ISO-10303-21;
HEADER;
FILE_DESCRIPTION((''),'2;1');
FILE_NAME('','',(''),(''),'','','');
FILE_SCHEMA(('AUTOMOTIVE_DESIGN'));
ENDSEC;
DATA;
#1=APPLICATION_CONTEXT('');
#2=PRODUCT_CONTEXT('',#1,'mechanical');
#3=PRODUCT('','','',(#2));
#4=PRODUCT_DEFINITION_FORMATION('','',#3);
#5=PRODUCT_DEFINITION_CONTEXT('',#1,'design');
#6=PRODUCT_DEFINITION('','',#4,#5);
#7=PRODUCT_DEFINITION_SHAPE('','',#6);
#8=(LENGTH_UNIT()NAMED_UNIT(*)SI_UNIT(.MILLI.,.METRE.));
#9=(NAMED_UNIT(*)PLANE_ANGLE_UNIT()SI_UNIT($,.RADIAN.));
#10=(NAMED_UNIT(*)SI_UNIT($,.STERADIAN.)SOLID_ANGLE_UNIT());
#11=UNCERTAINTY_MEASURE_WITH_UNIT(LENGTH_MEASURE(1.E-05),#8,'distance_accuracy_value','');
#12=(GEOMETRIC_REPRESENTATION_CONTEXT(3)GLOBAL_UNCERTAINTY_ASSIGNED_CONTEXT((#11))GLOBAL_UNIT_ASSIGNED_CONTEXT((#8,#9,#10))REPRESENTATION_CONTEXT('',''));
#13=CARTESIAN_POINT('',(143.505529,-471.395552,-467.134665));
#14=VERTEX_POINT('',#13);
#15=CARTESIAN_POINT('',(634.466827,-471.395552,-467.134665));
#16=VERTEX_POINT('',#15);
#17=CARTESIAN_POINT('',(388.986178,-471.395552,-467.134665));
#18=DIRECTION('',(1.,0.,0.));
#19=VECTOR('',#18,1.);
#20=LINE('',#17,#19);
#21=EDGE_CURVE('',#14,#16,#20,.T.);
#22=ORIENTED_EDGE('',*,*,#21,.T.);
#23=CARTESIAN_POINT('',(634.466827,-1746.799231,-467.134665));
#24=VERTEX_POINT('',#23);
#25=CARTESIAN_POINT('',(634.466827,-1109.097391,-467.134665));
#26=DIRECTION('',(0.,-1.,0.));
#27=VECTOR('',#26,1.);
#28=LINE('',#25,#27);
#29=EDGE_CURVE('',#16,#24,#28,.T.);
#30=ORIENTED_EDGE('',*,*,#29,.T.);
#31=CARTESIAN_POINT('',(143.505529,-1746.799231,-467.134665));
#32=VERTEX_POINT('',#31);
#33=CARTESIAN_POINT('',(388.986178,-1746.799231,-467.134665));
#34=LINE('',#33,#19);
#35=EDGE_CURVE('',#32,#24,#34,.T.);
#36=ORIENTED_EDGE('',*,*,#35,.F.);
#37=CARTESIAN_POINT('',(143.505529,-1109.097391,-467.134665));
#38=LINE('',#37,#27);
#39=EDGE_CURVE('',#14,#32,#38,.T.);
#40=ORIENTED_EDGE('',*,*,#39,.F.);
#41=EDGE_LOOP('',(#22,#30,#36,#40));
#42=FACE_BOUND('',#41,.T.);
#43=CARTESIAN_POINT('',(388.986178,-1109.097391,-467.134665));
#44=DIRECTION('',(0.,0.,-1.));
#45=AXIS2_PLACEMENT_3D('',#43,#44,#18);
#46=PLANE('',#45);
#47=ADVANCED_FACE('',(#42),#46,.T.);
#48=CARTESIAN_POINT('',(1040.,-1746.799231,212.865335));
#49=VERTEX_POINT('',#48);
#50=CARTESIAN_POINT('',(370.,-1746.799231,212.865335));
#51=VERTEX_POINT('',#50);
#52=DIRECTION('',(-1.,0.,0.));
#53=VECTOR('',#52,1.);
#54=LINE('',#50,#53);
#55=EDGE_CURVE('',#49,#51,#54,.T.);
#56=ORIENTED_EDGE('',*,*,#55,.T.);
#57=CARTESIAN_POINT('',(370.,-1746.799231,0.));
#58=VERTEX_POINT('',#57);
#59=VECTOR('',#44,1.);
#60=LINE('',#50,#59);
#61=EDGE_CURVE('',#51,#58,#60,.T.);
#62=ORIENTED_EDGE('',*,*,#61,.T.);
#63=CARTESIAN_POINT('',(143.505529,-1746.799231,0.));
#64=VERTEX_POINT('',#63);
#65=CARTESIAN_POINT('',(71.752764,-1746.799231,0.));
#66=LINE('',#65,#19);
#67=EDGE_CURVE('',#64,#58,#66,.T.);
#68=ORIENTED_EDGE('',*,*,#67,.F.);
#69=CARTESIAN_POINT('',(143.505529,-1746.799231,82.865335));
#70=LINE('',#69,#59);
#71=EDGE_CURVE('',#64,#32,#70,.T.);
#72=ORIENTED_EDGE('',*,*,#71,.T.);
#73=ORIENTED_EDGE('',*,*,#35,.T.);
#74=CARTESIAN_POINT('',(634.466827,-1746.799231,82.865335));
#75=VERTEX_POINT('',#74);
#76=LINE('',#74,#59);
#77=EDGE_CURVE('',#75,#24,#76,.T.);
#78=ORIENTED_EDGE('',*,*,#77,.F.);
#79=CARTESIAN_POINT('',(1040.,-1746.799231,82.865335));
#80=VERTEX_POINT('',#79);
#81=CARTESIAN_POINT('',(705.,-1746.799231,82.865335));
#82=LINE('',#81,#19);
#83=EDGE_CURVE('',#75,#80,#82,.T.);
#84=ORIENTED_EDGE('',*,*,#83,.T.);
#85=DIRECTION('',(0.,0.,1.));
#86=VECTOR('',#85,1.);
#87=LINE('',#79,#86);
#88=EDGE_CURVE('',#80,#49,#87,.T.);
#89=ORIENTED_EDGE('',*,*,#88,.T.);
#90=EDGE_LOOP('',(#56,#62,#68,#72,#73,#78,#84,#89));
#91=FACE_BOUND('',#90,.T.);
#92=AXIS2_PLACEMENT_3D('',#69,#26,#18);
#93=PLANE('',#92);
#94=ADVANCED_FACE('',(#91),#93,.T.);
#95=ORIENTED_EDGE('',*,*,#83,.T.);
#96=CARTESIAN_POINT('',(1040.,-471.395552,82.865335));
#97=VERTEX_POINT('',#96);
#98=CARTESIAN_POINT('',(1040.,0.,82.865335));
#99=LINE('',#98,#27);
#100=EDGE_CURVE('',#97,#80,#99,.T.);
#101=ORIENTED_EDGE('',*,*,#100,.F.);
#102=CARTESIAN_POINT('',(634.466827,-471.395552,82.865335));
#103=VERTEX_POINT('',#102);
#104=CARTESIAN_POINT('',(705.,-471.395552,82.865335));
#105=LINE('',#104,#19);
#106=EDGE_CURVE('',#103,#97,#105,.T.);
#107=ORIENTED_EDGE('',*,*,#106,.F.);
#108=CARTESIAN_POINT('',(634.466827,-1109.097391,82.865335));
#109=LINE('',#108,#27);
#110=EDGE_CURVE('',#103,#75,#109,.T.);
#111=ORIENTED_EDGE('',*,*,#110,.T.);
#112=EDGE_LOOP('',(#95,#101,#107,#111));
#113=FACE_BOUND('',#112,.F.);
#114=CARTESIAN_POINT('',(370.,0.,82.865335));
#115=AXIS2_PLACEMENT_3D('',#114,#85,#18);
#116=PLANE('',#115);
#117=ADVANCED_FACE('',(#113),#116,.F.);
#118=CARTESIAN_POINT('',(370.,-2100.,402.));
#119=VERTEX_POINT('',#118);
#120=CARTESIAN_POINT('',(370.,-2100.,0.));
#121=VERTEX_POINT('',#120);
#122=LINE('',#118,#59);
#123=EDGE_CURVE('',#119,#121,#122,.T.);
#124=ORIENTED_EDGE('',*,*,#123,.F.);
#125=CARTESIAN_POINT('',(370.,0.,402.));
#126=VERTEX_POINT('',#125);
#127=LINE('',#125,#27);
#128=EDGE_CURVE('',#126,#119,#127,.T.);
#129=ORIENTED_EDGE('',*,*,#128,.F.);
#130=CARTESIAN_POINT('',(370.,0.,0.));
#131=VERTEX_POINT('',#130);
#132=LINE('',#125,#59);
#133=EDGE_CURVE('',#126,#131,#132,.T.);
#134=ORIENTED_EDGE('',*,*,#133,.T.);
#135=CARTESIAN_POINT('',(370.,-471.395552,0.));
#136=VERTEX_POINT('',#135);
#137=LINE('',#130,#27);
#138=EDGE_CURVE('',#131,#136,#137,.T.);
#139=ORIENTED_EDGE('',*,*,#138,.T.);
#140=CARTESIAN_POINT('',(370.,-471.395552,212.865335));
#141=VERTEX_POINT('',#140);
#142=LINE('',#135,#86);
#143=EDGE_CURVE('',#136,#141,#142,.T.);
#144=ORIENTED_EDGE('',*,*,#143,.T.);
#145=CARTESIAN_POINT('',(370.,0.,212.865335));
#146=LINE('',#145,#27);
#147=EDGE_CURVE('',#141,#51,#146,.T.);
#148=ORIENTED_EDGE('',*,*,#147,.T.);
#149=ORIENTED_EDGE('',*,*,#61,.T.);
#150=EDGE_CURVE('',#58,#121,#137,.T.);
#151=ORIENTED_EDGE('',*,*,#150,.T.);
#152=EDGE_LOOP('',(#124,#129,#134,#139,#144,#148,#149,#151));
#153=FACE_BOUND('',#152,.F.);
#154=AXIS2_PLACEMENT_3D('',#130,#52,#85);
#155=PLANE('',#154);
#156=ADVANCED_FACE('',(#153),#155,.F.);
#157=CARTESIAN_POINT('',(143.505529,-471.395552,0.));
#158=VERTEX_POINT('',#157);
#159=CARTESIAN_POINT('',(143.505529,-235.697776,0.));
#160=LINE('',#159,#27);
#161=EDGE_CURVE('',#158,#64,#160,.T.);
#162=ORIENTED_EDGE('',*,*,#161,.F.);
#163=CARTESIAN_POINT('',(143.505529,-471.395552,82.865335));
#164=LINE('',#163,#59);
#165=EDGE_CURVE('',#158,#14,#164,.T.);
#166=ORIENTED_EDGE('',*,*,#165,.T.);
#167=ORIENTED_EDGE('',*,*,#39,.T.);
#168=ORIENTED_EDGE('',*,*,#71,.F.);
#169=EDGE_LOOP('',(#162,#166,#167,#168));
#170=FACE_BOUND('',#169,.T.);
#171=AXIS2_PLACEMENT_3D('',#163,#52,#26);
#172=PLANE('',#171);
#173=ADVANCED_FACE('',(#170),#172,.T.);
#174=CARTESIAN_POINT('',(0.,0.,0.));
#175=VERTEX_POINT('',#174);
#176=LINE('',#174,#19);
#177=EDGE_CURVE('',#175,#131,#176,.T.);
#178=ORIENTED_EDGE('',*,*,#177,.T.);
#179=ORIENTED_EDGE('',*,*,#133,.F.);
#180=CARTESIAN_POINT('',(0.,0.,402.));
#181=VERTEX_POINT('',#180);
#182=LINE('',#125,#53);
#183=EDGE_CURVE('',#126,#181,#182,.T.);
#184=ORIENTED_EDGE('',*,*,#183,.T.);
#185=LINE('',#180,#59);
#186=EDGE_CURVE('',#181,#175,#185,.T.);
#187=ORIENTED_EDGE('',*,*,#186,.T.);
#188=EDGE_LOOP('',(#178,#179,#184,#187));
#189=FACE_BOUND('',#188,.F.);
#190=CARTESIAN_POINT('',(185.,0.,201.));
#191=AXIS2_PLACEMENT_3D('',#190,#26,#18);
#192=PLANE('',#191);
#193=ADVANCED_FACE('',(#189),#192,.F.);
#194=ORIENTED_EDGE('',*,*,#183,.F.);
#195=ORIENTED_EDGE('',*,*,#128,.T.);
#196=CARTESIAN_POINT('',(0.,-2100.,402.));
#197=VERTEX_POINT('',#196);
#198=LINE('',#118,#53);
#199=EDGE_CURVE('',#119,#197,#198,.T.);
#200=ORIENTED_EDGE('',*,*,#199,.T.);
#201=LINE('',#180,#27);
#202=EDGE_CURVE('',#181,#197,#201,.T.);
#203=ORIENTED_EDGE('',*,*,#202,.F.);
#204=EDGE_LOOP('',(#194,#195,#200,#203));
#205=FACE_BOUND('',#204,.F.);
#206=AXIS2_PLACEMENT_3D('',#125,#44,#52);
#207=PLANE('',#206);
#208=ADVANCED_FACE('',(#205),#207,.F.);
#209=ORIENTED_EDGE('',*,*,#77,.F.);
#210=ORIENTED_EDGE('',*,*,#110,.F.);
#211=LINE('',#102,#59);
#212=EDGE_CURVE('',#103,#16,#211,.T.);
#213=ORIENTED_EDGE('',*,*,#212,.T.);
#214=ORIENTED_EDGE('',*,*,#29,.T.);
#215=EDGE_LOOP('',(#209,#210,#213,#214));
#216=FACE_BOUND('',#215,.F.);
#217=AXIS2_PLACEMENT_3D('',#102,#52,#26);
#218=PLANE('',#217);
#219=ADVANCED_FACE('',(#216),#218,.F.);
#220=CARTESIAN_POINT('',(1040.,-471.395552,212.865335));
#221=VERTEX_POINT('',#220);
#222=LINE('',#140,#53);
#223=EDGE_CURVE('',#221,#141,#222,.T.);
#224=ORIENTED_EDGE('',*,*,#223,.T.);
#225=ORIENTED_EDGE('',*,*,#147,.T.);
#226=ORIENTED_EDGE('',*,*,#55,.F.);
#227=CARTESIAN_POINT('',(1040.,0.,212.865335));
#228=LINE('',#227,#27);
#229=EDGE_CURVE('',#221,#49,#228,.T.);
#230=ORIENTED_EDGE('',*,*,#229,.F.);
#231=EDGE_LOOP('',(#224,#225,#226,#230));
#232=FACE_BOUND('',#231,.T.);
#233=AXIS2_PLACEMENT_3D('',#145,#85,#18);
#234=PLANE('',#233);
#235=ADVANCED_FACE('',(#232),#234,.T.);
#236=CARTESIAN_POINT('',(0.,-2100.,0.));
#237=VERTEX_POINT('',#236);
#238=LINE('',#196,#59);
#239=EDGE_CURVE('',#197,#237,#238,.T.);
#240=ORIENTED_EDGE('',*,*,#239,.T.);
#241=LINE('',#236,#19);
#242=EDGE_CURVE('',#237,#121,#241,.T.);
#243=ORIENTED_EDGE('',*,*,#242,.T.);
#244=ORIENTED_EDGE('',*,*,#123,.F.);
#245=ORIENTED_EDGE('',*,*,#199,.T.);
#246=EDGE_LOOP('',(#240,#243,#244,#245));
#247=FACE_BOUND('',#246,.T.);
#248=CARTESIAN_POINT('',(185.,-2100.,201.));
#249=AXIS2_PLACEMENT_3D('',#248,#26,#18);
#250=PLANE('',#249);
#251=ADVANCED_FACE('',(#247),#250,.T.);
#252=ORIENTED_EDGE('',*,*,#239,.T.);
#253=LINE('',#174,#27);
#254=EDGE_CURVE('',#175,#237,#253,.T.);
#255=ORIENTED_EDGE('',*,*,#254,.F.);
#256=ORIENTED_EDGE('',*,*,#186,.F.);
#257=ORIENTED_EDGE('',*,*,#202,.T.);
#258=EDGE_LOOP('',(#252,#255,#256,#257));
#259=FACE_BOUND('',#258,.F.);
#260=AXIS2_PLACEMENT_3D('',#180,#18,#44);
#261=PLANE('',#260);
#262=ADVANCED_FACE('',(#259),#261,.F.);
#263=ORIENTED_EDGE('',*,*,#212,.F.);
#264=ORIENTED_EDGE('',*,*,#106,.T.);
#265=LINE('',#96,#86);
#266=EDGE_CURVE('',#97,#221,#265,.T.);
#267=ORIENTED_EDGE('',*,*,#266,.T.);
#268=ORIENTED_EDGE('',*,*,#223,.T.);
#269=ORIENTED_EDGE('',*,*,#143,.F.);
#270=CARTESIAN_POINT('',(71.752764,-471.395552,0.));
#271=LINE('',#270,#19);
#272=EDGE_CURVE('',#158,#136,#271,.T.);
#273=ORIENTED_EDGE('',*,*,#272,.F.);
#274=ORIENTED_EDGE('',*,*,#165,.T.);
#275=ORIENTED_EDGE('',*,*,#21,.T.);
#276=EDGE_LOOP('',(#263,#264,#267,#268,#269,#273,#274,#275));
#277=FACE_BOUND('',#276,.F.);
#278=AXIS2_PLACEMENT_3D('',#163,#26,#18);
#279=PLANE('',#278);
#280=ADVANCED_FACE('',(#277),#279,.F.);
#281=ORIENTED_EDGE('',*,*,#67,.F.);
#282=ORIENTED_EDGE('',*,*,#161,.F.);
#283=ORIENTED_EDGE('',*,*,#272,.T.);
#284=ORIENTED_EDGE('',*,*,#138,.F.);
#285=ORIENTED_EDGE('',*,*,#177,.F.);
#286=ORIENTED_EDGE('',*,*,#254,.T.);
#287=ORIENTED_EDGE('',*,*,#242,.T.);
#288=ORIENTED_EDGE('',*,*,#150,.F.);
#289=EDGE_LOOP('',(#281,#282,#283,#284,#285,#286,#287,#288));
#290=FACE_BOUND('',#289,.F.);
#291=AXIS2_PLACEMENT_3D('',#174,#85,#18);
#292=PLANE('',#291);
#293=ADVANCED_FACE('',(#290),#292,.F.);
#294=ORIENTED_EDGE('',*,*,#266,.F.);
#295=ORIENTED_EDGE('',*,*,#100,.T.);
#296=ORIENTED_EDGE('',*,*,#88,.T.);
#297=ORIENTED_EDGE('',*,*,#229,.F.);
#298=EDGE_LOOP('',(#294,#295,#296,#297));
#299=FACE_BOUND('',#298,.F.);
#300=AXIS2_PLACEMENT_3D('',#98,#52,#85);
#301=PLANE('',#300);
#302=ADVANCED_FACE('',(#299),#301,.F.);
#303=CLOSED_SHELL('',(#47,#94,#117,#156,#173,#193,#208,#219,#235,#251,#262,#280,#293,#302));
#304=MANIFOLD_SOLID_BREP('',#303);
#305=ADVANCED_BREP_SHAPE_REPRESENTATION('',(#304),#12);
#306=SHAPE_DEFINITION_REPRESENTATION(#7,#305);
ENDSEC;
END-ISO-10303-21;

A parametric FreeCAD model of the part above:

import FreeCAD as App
import Part
import Sketcher
from FreeCAD import Vector

doc = App.newDocument("Part")
body = doc.addObject("PartDesign::Body", "Body")

sketch1 = doc.addObject("Sketcher::SketchObject", "Sketch")
body.addObject(sketch1)
sketch1.AttachmentSupport = (doc.XZ_Plane, [""])
sketch1.MapMode = "FlatFace"
sketch1.addGeometry([
    Part.LineSegment(Vector(0, 402, 0), Vector(0, 0, 0)),
    Part.LineSegment(Vector(0, 0, 0), Vector(370, 0, 0)),
    Part.LineSegment(Vector(370, 0, 0), Vector(370, 83, 0)),
    Part.LineSegment(Vector(370, 83, 0), Vector(1040, 83, 0)),
    Part.LineSegment(Vector(1040, 83, 0), Vector(1040, 213, 0)),
    Part.LineSegment(Vector(1040, 213, 0), Vector(370, 213, 0)),
    Part.LineSegment(Vector(370, 213, 0), Vector(370, 402, 0)),
    Part.LineSegment(Vector(370, 402, 0), Vector(0, 402, 0)),
], False)
sketch1.addConstraint([
    Sketcher.Constraint("Coincident", 0, 2, 1, 1),
    Sketcher.Constraint("Coincident", 1, 2, 2, 1),
    Sketcher.Constraint("Coincident", 2, 2, 3, 1),
    Sketcher.Constraint("Coincident", 3, 2, 4, 1),
    Sketcher.Constraint("Coincident", 4, 2, 5, 1),
    Sketcher.Constraint("Coincident", 5, 2, 6, 1),
    Sketcher.Constraint("Coincident", 6, 2, 7, 1),
    Sketcher.Constraint("Coincident", 7, 2, 0, 1),
    Sketcher.Constraint("Vertical", 0),
    Sketcher.Constraint("Horizontal", 1),
    Sketcher.Constraint("Vertical", 2),
    Sketcher.Constraint("Horizontal", 3),
    Sketcher.Constraint("Vertical", 4),
    Sketcher.Constraint("Horizontal", 5),
    Sketcher.Constraint("Vertical", 6),
    Sketcher.Constraint("Horizontal", 7),
    Sketcher.Constraint("Coincident", 0, 2, -1, 1),
    Sketcher.Constraint("Vertical", 2, 2, 5, 2),
    Sketcher.Constraint("DistanceX", 1, 1, 1, 2, 370.0),
    Sketcher.Constraint("DistanceX", 3, 1, 3, 2, 670.0),
    Sketcher.Constraint("DistanceY", 0, 2, 0, 1, 402.0),
    Sketcher.Constraint("DistanceY", 4, 1, 4, 2, 130.0),
    Sketcher.Constraint("DistanceY", 2, 1, 2, 2, 82.865335),
])
pad1 = doc.addObject("PartDesign::Pad", "Pad")
body.addObject(pad1)
pad1.Profile = sketch1
pad1.Length = 2100

sketch2 = doc.addObject("Sketcher::SketchObject", "Sketch001")
body.addObject(sketch2)
sketch2.AttachmentSupport = (doc.XY_Plane, [""])
sketch2.MapMode = "FlatFace"
sketch2.AttachmentOffset = App.Placement(Vector(0, 0, 82.865335), App.Rotation())
sketch2.addGeometry([
    Part.LineSegment(Vector(144, -1747, 0), Vector(144, -471, 0)),
    Part.LineSegment(Vector(144, -471, 0), Vector(634, -471, 0)),
    Part.LineSegment(Vector(634, -471, 0), Vector(634, -1747, 0)),
    Part.LineSegment(Vector(634, -1747, 0), Vector(144, -1747, 0)),
], False)
sketch2.addConstraint([
    Sketcher.Constraint("Coincident", 0, 2, 1, 1),
    Sketcher.Constraint("Coincident", 1, 2, 2, 1),
    Sketcher.Constraint("Coincident", 2, 2, 3, 1),
    Sketcher.Constraint("Coincident", 3, 2, 0, 1),
    Sketcher.Constraint("Vertical", 0),
    Sketcher.Constraint("Horizontal", 1),
    Sketcher.Constraint("Vertical", 2),
    Sketcher.Constraint("Horizontal", 3),
    Sketcher.Constraint("DistanceX", 1, 1, 1, 2, 490.961298),
    Sketcher.Constraint("DistanceY", 0, 1, 0, 2, 1275.403678),
    Sketcher.Constraint("DistanceX", -1, 1, 0, 2, 143.505529),
    Sketcher.Constraint("DistanceY", 2, 2, -1, 1, 1746.799231),
])
pad2 = doc.addObject("PartDesign::Pad", "Pad001")
body.addObject(pad2)
pad2.Profile = sketch2
pad2.Length = 550
pad2.Reversed = True

sketch3 = doc.addObject("Sketcher::SketchObject", "Sketch002")
body.addObject(sketch3)
sketch3.AttachmentSupport = (doc.XY_Plane, [""])
sketch3.MapMode = "FlatFace"
sketch3.AttachmentOffset = App.Placement(Vector(0, 0, 82.865335), App.Rotation())
sketch3.addGeometry([
    Part.LineSegment(Vector(370, -471, 0), Vector(370, 0, 0)),
    Part.LineSegment(Vector(370, 0, 0), Vector(1040, 0, 0)),
    Part.LineSegment(Vector(1040, 0, 0), Vector(1040, -471, 0)),
    Part.LineSegment(Vector(1040, -471, 0), Vector(370, -471, 0)),
    Part.LineSegment(Vector(370, -2100, 0), Vector(370, -1747, 0)),
    Part.LineSegment(Vector(370, -1747, 0), Vector(1040, -1747, 0)),
    Part.LineSegment(Vector(1040, -1747, 0), Vector(1040, -2100, 0)),
    Part.LineSegment(Vector(1040, -2100, 0), Vector(370, -2100, 0)),
], False)
sketch3.addConstraint([
    Sketcher.Constraint("Coincident", 0, 2, 1, 1),
    Sketcher.Constraint("Coincident", 1, 2, 2, 1),
    Sketcher.Constraint("Coincident", 2, 2, 3, 1),
    Sketcher.Constraint("Coincident", 3, 2, 0, 1),
    Sketcher.Constraint("Coincident", 4, 2, 5, 1),
    Sketcher.Constraint("Coincident", 5, 2, 6, 1),
    Sketcher.Constraint("Coincident", 6, 2, 7, 1),
    Sketcher.Constraint("Coincident", 7, 2, 4, 1),
    Sketcher.Constraint("Vertical", 0),
    Sketcher.Constraint("Horizontal", 1),
    Sketcher.Constraint("Vertical", 2),
    Sketcher.Constraint("Horizontal", 3),
    Sketcher.Constraint("Vertical", 4),
    Sketcher.Constraint("Horizontal", 5),
    Sketcher.Constraint("Vertical", 6),
    Sketcher.Constraint("Horizontal", 7),
    Sketcher.Constraint("PointOnObject", 0, 2, -1),
    Sketcher.Constraint("Vertical", 3, 2, 4, 2),
    Sketcher.Constraint("Vertical", 2, 2, 5, 2),
    Sketcher.Constraint("DistanceX", 1, 1, 1, 2, 670.0),
    Sketcher.Constraint("DistanceX", -1, 1, 0, 2, 370.0),
    Sketcher.Constraint("DistanceY", 6, 2, -1, 1, 2100.0),
    Sketcher.Constraint("DistanceY", 4, 1, 4, 2, 353.200769),
    Sketcher.Constraint("DistanceY", 0, 1, 0, 2, 471.395552),
])
pocket1 = doc.addObject("PartDesign::Pocket", "Pocket")
body.addObject(pocket1)
pocket1.Profile = sketch3
pocket1.Length = 500
pocket1.Reversed = True

doc.recompute()
